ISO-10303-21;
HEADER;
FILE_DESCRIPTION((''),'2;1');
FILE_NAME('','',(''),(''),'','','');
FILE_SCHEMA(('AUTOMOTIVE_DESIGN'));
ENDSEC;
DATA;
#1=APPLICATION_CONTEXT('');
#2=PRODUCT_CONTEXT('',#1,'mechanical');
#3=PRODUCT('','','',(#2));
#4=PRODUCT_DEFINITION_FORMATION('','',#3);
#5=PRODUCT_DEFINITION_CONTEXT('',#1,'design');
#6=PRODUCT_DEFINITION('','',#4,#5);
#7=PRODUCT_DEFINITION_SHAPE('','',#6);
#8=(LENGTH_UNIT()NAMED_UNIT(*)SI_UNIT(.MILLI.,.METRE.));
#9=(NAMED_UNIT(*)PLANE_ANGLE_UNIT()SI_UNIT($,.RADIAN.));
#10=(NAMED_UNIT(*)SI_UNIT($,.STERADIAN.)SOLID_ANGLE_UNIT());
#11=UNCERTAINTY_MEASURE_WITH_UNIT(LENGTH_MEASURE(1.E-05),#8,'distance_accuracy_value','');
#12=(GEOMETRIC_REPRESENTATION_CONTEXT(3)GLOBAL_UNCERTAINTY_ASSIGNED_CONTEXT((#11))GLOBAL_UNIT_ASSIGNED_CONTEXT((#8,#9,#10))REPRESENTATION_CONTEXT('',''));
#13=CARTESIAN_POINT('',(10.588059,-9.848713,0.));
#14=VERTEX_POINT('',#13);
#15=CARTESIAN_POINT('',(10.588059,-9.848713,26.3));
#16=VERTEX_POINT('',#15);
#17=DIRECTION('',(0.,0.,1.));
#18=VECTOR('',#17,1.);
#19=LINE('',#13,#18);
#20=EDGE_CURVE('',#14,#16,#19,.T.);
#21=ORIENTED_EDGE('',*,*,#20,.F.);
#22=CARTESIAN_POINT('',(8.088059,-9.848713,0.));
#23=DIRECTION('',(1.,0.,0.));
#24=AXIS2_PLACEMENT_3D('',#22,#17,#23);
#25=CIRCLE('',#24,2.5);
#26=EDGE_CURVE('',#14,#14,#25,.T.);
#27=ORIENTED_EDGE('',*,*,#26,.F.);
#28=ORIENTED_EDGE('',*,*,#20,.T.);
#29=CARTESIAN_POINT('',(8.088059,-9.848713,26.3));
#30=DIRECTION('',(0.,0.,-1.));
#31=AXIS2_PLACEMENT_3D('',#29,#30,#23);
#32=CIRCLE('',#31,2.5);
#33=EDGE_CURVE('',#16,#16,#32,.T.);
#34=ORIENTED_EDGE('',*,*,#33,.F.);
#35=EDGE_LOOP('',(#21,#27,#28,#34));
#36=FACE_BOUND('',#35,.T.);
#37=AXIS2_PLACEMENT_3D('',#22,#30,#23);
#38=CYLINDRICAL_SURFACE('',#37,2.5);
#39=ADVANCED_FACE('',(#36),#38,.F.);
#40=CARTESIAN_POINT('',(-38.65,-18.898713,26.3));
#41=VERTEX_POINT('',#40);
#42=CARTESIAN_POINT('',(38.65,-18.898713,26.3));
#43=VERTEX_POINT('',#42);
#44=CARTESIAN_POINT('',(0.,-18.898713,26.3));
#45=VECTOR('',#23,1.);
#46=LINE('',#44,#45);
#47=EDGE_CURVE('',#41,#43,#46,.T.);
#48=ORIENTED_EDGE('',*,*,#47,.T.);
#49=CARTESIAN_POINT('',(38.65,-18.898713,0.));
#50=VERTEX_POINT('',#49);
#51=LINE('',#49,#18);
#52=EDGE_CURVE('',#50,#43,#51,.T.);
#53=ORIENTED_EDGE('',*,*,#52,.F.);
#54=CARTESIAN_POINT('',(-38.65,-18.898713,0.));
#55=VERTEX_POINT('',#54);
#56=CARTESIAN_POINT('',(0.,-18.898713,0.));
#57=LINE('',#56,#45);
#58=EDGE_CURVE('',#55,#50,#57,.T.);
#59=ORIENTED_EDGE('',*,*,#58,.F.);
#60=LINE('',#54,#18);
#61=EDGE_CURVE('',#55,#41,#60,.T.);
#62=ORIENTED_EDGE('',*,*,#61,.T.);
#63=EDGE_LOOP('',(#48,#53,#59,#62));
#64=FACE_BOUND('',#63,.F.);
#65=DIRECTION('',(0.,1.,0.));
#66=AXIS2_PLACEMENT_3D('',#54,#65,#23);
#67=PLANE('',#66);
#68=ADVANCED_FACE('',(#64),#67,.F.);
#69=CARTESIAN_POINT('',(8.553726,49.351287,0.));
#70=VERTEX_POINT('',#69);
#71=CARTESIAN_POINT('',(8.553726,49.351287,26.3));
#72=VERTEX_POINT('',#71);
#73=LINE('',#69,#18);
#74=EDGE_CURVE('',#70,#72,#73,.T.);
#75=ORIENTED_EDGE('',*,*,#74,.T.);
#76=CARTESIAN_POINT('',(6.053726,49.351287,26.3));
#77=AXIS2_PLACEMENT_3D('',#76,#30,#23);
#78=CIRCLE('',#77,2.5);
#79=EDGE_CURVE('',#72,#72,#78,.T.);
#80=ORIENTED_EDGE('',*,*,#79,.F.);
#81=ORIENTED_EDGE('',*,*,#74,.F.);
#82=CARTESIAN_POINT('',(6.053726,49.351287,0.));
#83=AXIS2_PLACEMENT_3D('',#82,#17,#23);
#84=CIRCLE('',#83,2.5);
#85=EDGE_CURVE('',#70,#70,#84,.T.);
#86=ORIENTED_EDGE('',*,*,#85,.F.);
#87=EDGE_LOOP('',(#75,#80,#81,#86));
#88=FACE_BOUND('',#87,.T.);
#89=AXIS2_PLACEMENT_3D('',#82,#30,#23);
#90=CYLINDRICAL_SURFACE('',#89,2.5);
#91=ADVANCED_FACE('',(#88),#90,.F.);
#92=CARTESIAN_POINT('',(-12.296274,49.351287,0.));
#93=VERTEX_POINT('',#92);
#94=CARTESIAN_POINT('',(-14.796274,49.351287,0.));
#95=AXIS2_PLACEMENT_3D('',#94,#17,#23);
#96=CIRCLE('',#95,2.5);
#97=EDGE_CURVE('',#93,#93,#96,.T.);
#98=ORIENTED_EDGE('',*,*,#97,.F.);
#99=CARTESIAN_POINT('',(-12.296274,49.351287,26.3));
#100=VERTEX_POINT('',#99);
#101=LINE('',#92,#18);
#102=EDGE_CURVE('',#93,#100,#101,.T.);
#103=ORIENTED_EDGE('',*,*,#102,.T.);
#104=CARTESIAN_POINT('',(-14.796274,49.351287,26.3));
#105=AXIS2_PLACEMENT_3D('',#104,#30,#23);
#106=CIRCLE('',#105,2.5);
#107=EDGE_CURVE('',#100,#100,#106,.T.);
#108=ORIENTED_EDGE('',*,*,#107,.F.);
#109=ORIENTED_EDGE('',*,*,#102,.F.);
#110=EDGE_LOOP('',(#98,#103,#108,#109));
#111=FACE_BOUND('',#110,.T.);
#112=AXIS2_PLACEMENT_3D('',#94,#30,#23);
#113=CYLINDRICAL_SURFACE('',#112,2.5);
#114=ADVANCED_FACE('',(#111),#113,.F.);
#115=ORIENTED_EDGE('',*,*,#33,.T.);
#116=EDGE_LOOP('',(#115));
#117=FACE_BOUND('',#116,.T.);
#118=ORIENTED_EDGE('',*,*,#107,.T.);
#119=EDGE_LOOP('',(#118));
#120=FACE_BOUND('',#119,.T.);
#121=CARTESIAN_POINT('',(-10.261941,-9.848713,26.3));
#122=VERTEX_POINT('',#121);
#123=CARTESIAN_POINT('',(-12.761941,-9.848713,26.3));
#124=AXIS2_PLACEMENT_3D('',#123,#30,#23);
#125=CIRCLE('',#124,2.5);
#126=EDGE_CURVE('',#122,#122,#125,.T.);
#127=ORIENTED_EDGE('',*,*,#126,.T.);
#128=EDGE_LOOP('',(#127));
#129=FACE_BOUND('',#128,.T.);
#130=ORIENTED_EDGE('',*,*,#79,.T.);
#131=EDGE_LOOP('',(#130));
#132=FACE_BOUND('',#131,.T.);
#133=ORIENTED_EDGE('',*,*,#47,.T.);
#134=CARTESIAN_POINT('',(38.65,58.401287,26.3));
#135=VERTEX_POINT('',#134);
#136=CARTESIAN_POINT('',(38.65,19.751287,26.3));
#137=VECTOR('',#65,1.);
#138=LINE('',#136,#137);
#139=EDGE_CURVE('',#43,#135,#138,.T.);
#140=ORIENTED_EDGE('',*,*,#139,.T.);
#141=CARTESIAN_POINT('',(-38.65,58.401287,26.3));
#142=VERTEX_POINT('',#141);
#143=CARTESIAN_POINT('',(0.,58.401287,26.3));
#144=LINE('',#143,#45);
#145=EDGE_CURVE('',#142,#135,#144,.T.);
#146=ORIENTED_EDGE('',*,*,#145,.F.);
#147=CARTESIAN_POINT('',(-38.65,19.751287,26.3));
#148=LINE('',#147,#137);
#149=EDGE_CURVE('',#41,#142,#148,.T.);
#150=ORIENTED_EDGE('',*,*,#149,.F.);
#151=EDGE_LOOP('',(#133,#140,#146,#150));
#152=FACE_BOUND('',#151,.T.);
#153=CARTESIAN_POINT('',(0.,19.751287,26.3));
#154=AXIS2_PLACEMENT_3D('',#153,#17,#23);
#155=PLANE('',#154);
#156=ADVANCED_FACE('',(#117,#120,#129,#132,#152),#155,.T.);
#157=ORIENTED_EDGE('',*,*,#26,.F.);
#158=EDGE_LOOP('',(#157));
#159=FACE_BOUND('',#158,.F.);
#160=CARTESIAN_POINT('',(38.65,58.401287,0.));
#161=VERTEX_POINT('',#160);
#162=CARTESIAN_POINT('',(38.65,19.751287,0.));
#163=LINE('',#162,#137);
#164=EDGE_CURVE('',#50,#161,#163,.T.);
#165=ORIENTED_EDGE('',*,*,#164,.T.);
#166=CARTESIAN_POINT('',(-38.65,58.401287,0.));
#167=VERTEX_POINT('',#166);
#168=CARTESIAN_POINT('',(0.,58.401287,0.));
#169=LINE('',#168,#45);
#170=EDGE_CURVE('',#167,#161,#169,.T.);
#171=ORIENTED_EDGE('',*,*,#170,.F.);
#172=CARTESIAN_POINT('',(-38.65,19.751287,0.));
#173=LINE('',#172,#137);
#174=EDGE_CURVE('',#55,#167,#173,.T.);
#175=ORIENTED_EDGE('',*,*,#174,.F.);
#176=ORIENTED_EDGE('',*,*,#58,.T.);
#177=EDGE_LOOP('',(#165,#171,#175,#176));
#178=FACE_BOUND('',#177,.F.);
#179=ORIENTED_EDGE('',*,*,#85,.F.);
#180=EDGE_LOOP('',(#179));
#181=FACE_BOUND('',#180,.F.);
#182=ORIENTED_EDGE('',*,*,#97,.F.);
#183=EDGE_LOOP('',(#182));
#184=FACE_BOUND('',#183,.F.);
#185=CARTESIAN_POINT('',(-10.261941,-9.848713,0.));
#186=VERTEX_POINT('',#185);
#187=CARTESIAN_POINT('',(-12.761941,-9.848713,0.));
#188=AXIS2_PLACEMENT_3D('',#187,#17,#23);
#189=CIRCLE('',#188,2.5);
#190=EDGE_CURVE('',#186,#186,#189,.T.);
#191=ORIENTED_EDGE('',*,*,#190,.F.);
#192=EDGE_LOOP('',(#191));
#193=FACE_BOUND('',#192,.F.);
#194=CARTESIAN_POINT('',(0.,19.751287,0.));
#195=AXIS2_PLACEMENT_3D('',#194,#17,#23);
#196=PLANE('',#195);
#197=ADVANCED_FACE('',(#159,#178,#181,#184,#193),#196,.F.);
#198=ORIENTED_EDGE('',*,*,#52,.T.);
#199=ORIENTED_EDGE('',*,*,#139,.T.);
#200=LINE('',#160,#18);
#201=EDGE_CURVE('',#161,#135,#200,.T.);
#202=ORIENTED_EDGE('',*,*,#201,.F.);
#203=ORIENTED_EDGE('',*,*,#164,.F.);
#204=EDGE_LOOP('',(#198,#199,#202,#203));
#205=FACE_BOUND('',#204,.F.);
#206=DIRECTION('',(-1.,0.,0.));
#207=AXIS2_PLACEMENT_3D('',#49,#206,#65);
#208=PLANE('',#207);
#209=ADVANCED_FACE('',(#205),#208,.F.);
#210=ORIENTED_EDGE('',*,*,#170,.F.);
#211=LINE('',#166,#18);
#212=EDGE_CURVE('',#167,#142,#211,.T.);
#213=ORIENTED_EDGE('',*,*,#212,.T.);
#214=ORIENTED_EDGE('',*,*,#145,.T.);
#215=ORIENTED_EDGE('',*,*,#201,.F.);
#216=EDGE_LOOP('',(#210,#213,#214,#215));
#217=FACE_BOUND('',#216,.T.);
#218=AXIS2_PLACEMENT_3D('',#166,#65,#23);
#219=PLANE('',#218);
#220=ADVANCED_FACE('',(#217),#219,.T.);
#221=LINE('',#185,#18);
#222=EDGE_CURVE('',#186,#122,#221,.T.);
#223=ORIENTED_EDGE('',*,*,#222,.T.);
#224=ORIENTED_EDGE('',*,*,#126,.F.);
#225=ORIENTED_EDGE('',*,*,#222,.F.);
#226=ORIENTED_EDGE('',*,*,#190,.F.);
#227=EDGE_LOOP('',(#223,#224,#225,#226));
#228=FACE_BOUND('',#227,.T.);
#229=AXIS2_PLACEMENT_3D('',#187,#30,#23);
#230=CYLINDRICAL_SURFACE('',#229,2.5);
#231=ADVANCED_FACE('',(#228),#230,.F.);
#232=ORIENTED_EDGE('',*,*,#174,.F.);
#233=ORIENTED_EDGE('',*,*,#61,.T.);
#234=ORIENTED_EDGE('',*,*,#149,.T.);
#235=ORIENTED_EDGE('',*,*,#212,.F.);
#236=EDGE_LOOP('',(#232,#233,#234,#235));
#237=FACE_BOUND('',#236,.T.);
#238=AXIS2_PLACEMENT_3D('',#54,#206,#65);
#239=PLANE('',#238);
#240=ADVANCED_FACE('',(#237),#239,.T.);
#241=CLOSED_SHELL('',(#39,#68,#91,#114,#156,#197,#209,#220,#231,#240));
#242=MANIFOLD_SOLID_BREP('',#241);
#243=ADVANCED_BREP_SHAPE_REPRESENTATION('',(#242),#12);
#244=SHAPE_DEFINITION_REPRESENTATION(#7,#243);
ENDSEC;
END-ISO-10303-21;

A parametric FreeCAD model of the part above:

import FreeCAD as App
import Part
import Sketcher
Q = App.Units.Quantity

doc = App.newDocument("Part")
body = doc.addObject("PartDesign::Body", "Body")

# Sketch on XY plane
sketch1 = doc.addObject("Sketcher::SketchObject", "Sketch")
body.addObject(sketch1)
sketch1.AttachmentSupport = (doc.XY_Plane, [""])
sketch1.MapMode = "FlatFace"
sketch1.addGeometry([
    Part.LineSegment(App.Vector(-38.65, 58.401287, 0), App.Vector(-38.65, -18.898713, 0)),
    Part.LineSegment(App.Vector(-38.65, -18.898713, 0), App.Vector(38.65, -18.898713, 0)),
    Part.LineSegment(App.Vector(38.65, -18.898713, 0), App.Vector(38.65, 58.401287, 0)),
    Part.LineSegment(App.Vector(38.65, 58.401287, 0), App.Vector(-38.65, 58.401287, 0)),
], False)
sketch1.addConstraint([
    Sketcher.Constraint("Coincident", 0, 2, 1, 1),
    Sketcher.Constraint("Coincident", 1, 2, 2, 1),
    Sketcher.Constraint("Coincident", 2, 2, 3, 1),
    Sketcher.Constraint("Coincident", 3, 2, 0, 1),
    Sketcher.Constraint("Vertical", 0),
    Sketcher.Constraint("Horizontal", 1),
    Sketcher.Constraint("Vertical", 2),
    Sketcher.Constraint("Horizontal", 3),
    Sketcher.Constraint("Equal", 3, 0),
    Sketcher.Constraint("DistanceX", 1, 1, 1, 2, Q("77.3 mm")),
    Sketcher.Constraint("DistanceX", 0, 2, -1, 1, Q("38.65 mm")),
    Sketcher.Constraint("DistanceY", 0, 2, -1, 1, Q("18.898713 mm")),
])
pad1 = doc.addObject("PartDesign::Pad", "Pad")
body.addObject(pad1)
pad1.Profile = sketch1
pad1.Length = 26.3

# Sketch on XY plane
sketch2 = doc.addObject("Sketcher::SketchObject", "Sketch001")
body.addObject(sketch2)
sketch2.AttachmentSupport = (doc.XY_Plane, [""])
sketch2.MapMode = "FlatFace"
sketch2.addGeometry([
    Part.Circle(App.Vector(-12.761941, -9.848713, 0), App.Vector(0, 0, 1), 2.5),
    Part.Circle(App.Vector(8.088059, -9.848713, 0), App.Vector(0, 0, 1), 2.5),
    Part.Circle(App.Vector(6.053726, 49.351287, 0), App.Vector(0, 0, 1), 2.5),
    Part.Circle(App.Vector(-14.796274, 49.351287, 0), App.Vector(0, 0, 1), 2.5),
], False)
sketch2.addConstraint([
    Sketcher.Constraint("Equal", 0, 1),
    Sketcher.Constraint("Equal", 1, 2),
    Sketcher.Constraint("Equal", 2, 3),
    Sketcher.Constraint("Horizontal", 0, 3, 1, 3),
    Sketcher.Constraint("Horizontal", 2, 3, 3, 3),
    Sketcher.Constraint("Diameter", 0, Q("5 mm")),
    Sketcher.Constraint("DistanceY", 1, 3, 2, 3, Q("59.2 mm")),
    Sketcher.Constraint("DistanceX", 0, 3, 1, 3, Q("20.85 mm")),
    Sketcher.Constraint("DistanceX", 3, 3, 2, 3, Q("20.85 mm")),
    Sketcher.Constraint("DistanceX", 0, 3, -1, 1, Q("12.761941 mm")),
    Sketcher.Constraint("DistanceY", 0, 3, -1, 1, Q("9.848713 mm")),
    Sketcher.Constraint("DistanceX", -1, 1, 2, 3, Q("6.053726 mm")),
])
pocket1 = doc.addObject("PartDesign::Pocket", "Pocket")
body.addObject(pocket1)
pocket1.Profile = sketch2
pocket1.Length = 66.5
pocket1.Reversed = True

doc.recompute()
